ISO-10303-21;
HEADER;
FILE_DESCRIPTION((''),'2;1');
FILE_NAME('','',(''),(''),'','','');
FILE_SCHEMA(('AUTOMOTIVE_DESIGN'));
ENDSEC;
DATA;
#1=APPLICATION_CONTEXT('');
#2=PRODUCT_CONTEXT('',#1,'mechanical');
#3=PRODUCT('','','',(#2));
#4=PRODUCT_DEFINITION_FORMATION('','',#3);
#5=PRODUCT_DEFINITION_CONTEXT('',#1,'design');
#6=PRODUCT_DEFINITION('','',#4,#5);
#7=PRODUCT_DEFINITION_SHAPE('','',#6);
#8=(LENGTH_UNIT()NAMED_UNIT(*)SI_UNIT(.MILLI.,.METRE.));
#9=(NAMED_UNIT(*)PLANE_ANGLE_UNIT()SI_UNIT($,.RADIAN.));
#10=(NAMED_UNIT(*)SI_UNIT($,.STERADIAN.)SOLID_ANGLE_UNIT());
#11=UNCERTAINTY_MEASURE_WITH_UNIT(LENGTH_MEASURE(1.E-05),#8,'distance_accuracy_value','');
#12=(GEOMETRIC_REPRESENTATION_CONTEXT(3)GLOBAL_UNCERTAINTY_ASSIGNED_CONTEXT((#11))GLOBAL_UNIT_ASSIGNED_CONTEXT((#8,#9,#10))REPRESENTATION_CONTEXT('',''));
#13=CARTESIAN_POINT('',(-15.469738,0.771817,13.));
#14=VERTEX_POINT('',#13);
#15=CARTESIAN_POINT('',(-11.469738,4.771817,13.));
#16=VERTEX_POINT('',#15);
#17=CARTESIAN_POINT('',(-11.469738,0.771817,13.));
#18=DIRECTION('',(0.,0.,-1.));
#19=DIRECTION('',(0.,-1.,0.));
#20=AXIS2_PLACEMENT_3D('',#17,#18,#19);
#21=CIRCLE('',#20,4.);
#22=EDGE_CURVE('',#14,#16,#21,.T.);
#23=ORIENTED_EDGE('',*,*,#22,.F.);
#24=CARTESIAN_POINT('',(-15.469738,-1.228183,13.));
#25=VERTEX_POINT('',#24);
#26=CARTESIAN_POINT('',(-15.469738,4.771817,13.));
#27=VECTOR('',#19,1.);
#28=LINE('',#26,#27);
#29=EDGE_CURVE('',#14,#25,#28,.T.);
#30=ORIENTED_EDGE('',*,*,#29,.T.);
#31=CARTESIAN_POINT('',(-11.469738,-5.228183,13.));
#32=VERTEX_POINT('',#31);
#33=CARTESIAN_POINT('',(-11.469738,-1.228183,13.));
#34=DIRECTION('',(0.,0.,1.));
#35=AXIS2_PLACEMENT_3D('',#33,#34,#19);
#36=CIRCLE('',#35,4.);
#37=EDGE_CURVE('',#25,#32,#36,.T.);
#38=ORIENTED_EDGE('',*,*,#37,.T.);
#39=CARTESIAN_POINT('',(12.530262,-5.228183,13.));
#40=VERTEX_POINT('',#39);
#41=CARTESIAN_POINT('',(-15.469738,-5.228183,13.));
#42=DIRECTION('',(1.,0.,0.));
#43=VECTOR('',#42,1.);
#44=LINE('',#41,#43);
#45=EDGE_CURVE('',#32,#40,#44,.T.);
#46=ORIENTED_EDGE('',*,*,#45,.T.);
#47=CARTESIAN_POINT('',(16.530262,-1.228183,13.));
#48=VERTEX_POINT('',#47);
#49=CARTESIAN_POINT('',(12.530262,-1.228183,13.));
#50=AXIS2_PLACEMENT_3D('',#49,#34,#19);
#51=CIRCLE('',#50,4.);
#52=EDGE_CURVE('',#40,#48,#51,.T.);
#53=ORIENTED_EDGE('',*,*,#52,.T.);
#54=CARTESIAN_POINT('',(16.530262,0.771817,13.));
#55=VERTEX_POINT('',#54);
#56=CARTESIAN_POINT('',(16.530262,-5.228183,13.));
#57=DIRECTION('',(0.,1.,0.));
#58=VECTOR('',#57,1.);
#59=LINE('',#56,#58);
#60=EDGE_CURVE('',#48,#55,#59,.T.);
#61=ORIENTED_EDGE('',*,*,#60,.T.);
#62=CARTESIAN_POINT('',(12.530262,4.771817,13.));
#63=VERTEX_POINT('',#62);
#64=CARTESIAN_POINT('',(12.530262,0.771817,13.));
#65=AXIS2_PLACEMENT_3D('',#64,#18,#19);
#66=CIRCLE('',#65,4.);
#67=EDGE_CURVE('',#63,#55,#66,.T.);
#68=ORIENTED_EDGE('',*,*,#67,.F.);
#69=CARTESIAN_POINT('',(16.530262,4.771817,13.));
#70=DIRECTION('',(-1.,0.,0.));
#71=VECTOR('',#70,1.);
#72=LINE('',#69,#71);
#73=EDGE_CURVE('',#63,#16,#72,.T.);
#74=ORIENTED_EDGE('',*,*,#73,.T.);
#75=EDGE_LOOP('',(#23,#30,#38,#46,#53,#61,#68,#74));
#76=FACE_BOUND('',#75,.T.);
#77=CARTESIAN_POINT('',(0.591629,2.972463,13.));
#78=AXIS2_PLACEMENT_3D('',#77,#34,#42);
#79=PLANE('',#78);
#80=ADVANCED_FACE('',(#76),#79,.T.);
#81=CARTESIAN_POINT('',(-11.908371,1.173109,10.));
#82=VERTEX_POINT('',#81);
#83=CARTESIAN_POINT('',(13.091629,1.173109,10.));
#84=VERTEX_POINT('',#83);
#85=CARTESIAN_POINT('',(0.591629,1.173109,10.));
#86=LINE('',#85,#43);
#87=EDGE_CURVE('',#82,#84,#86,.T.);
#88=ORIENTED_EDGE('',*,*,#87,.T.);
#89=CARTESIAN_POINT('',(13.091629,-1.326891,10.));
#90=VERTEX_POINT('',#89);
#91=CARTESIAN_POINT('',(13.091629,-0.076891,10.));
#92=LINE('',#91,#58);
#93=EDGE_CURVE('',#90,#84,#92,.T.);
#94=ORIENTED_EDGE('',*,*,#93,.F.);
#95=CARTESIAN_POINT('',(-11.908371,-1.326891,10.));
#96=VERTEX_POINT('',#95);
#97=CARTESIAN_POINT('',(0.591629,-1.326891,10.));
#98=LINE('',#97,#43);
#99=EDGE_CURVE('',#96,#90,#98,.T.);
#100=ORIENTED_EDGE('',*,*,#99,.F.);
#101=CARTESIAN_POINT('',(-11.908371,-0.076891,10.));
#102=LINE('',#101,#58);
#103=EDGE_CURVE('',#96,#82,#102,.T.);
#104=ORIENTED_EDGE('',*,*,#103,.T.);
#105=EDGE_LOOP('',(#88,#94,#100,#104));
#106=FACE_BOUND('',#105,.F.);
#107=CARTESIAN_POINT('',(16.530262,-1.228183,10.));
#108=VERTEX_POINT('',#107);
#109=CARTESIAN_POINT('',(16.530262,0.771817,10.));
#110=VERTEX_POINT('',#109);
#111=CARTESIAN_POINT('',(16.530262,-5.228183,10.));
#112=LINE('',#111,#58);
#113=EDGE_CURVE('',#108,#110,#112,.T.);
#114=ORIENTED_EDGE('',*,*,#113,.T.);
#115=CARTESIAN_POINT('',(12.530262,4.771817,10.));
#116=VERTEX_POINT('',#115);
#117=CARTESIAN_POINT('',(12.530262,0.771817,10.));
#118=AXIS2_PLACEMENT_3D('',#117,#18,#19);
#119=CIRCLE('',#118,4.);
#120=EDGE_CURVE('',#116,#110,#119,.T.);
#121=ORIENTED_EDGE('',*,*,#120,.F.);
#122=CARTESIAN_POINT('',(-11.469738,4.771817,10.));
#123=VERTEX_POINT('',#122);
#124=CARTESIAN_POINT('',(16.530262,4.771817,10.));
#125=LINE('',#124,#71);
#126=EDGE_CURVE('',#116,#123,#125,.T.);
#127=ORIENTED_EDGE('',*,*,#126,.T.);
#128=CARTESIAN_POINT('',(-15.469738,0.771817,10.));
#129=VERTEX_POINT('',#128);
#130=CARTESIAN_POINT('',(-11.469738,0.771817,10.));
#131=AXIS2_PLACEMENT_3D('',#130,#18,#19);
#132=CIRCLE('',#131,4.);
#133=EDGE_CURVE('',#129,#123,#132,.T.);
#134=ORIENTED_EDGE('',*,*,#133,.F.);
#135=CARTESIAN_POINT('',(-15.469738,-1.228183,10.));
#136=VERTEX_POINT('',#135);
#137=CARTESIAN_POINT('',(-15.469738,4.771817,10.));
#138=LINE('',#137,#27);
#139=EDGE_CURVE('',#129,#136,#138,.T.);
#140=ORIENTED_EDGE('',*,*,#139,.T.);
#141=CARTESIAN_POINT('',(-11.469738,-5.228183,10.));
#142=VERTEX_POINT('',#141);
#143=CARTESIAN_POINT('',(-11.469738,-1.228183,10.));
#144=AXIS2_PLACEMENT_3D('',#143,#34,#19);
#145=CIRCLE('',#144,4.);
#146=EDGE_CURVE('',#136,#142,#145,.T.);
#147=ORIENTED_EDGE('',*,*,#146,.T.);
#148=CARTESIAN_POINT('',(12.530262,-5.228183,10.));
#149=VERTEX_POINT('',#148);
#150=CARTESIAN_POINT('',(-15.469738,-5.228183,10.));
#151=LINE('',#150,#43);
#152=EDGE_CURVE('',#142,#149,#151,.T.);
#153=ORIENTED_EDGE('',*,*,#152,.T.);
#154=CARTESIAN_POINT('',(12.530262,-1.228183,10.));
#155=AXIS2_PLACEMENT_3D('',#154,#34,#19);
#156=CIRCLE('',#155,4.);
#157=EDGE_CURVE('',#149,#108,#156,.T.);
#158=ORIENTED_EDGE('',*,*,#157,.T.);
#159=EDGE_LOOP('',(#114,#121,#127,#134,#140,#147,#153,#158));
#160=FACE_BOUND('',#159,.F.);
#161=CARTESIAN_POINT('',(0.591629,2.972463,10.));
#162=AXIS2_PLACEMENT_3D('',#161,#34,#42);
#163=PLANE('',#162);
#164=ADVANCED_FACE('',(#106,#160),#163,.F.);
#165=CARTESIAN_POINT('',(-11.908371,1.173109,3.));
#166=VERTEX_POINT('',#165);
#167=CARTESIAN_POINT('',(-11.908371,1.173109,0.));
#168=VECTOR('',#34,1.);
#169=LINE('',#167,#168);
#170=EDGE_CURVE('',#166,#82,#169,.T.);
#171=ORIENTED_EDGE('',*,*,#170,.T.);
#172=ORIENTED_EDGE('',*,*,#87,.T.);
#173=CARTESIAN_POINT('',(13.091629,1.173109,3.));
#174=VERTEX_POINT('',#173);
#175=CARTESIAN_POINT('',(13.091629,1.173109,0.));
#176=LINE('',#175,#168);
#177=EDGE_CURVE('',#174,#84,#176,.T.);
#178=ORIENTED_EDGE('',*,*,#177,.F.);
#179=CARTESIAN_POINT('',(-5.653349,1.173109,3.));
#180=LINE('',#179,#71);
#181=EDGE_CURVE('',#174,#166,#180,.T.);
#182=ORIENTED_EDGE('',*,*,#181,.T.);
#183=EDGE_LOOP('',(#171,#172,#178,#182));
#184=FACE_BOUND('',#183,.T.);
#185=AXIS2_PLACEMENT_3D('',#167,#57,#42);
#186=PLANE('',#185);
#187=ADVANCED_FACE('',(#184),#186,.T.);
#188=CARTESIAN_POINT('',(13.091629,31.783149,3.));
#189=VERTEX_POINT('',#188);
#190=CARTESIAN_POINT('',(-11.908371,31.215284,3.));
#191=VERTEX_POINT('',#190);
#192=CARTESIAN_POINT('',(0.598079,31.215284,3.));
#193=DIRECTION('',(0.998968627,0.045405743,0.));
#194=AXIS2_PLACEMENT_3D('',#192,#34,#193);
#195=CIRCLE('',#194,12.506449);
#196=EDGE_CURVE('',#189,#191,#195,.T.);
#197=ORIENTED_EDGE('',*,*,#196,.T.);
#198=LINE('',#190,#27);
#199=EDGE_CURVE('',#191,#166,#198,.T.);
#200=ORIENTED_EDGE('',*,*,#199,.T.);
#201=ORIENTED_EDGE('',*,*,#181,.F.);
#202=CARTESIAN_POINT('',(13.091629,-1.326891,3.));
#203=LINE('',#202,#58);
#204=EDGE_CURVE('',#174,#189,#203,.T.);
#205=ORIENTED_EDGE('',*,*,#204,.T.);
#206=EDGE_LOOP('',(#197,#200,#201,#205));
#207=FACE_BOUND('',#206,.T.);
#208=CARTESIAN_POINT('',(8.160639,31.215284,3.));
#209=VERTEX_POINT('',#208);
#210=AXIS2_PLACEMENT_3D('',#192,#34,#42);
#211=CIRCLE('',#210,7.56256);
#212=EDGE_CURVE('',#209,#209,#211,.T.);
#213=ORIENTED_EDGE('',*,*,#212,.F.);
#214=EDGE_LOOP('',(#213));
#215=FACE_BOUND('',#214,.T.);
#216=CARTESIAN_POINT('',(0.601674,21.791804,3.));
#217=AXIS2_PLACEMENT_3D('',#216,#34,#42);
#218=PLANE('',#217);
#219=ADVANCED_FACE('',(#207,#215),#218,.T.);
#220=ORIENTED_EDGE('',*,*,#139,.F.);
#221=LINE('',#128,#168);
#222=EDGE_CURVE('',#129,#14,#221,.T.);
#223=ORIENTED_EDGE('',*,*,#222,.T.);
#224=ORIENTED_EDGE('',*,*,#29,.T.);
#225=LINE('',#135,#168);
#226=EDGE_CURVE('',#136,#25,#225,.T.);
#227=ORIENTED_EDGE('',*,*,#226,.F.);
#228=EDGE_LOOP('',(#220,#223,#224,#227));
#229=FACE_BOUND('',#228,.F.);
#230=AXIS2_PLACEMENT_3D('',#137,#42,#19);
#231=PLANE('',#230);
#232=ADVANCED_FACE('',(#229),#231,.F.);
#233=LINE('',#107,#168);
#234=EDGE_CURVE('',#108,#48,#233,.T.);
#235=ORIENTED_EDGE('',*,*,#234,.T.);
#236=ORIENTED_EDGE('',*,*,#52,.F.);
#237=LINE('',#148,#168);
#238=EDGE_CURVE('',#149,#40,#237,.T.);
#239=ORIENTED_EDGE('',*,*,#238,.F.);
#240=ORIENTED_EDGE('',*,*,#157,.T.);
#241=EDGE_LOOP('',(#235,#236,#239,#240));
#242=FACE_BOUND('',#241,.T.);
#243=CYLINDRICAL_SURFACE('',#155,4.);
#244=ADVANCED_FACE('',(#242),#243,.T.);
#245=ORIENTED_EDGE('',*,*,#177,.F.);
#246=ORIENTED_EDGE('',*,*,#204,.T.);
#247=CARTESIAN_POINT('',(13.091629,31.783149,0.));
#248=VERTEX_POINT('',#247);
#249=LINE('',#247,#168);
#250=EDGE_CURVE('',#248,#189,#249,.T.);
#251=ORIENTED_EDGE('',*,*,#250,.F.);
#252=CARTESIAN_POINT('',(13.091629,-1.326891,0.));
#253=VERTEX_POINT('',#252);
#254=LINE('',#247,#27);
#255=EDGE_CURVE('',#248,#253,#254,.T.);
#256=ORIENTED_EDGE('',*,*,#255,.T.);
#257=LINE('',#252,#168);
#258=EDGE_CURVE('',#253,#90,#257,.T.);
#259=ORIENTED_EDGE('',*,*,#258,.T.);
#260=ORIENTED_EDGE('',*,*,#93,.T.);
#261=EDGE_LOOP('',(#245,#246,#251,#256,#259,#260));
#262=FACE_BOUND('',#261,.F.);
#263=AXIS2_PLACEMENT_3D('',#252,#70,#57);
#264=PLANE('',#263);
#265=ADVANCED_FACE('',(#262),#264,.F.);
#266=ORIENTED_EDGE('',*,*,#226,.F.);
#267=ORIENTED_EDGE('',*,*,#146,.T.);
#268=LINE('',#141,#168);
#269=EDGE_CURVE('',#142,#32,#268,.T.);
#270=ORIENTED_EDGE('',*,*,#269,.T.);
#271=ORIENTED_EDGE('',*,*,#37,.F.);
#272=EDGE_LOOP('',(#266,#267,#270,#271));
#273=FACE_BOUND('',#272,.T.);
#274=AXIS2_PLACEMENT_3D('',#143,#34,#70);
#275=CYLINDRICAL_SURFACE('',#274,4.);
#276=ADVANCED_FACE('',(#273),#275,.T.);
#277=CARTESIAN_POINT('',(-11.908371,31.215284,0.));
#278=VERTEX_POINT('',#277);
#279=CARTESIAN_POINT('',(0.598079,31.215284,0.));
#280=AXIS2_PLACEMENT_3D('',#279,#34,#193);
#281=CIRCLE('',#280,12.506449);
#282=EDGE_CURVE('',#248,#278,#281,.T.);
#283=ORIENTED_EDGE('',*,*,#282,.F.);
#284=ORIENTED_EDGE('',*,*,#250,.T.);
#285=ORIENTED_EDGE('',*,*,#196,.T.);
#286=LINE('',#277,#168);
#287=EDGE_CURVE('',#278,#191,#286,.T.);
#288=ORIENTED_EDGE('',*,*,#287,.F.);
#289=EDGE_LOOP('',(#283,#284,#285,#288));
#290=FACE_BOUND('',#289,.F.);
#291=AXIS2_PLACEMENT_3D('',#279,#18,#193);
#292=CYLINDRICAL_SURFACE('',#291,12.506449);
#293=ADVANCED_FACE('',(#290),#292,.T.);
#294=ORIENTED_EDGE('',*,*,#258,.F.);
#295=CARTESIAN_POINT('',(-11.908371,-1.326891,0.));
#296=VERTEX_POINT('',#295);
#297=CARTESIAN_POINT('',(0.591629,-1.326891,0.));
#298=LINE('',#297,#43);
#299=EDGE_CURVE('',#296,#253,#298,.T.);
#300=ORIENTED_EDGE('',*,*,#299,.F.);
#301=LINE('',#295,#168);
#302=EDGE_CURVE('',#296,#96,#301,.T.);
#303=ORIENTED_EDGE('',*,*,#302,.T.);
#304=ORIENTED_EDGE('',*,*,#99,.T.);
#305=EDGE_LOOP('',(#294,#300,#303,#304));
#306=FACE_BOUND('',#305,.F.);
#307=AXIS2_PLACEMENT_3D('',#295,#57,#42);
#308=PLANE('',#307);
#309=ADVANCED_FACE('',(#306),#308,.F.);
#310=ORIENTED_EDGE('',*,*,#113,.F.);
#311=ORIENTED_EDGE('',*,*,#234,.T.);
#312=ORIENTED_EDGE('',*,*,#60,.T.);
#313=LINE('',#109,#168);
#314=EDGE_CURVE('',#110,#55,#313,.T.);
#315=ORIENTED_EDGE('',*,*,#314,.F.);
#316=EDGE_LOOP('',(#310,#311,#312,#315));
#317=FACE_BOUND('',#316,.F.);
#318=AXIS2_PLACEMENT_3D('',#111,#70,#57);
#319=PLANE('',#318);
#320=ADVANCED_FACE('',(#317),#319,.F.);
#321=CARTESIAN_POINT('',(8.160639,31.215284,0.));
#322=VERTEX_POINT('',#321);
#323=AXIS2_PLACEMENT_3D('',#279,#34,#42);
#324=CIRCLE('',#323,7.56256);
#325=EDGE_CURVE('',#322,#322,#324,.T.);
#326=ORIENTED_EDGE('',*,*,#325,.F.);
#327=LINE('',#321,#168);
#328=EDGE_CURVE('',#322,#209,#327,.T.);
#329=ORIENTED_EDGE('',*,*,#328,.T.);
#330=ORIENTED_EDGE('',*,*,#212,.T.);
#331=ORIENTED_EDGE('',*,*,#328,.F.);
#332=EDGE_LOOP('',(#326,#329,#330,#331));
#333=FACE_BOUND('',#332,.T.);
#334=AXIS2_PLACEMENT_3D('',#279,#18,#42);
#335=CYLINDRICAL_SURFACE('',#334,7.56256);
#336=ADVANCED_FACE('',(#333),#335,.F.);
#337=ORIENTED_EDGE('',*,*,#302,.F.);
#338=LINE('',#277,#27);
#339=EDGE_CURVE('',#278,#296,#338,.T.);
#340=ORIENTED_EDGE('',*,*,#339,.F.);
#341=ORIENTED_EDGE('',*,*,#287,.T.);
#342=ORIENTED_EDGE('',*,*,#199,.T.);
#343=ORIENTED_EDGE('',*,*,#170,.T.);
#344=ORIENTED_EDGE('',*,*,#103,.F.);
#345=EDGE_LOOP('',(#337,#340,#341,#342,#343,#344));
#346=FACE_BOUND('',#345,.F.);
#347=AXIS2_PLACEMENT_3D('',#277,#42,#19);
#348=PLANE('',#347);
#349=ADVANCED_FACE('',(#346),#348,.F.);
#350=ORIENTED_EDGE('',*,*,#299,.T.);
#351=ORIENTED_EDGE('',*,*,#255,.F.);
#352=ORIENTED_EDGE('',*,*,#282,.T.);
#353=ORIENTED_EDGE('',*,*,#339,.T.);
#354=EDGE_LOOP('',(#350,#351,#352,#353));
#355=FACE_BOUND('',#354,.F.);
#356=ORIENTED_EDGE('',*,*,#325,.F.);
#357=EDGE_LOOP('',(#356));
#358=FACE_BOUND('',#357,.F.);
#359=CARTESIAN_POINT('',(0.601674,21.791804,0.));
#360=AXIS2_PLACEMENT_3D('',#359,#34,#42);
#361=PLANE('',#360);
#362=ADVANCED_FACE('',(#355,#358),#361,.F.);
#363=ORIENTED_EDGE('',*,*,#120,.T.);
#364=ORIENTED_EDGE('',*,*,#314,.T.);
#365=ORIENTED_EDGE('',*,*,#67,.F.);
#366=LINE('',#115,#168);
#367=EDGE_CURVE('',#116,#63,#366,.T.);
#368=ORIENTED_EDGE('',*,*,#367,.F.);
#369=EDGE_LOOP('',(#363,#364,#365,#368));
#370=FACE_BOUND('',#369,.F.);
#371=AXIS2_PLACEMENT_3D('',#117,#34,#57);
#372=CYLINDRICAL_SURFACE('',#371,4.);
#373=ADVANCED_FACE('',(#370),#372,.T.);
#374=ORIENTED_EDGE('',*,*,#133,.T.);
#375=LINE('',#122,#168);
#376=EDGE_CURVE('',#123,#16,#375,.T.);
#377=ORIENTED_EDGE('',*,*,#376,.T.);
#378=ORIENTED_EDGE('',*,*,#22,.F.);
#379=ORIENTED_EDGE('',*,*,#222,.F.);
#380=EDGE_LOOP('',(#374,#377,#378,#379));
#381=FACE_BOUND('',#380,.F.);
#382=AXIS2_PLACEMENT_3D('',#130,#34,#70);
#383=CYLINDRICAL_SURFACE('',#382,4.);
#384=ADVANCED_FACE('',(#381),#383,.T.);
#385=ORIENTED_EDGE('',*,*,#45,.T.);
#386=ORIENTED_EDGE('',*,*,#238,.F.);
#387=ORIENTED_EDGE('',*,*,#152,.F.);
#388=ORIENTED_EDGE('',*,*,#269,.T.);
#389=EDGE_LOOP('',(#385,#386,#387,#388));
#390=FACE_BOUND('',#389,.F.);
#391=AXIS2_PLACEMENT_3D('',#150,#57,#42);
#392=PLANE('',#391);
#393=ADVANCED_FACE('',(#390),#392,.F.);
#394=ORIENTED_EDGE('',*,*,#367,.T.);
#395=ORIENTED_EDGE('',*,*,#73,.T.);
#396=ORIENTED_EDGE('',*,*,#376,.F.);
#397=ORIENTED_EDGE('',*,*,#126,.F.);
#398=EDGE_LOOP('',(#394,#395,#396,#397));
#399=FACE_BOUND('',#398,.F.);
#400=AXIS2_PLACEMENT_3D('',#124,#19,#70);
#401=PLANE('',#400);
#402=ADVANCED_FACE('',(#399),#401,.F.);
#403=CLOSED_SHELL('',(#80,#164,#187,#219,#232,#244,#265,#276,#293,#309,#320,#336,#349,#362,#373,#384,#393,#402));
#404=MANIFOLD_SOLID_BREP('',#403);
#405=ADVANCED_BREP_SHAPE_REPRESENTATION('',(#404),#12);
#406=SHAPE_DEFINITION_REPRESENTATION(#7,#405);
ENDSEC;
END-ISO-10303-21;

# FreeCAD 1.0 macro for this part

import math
import FreeCAD as App
import Part
import Sketcher


def edges_at(feature, points):
    """Names of the edges that pass closest to the given points."""
    edges = feature.Shape.Edges
    near = lambda p: min(range(len(edges)), key=lambda i: edges[i].distToShape(Part.Vertex(*p))[0])
    return sorted({f"Edge{near(p) + 1}" for p in points})

doc = App.newDocument("Part")
body = doc.addObject("PartDesign::Body", "Body")

# Sketch on XY plane
sketch1 = doc.addObject("Sketcher::SketchObject", "Sketch")
body.addObject(sketch1)
sketch1.AttachmentSupport = (doc.XY_Plane, [""])
sketch1.MapMode = "FlatFace"
sketch1.addGeometry(Part.LineSegment(App.Vector(-11.908371, 31.215284, 0), App.Vector(-11.908371, -1.326891, 0)), False)
sketch1.addGeometry(Part.LineSegment(App.Vector(-11.908371, -1.326891, 0), App.Vector(13.091629, -1.326891, 0)), False)
sketch1.addGeometry(Part.LineSegment(App.Vector(13.091629, -1.326891, 0), App.Vector(13.091629, 31.783149, 0)), False)
sketch1.addGeometry(Part.ArcOfCircle(Part.Circle(App.Vector(0.598079, 31.215284, 0), App.Vector(0, 0, 1), 12.506449), math.radians(2.602452), math.radians(180)), False)
sketch1.addGeometry(Part.Circle(App.Vector(0.598079, 31.215284, 0), App.Vector(0, 0, 1), 7.56256), False)
sketch1.addConstraint(Sketcher.Constraint("Coincident", 0, 2, 1, 1))
sketch1.addConstraint(Sketcher.Constraint("Coincident", 1, 2, 2, 1))
sketch1.addConstraint(Sketcher.Constraint("Coincident", 2, 2, 3, 1))
sketch1.addConstraint(Sketcher.Constraint("Tangent", 3, 2, 0, 1))
sketch1.addConstraint(Sketcher.Constraint("Vertical", 0))
sketch1.addConstraint(Sketcher.Constraint("Horizontal", 1))
sketch1.addConstraint(Sketcher.Constraint("Vertical", 2))
sketch1.addConstraint(Sketcher.Constraint("Coincident", 4, 3, 3, 3))
sketch1.addConstraint(Sketcher.Constraint("DistanceX", 1, 1, 1, 2, 25.0))
sketch1.addConstraint(Sketcher.Constraint("Diameter", 4, 15.12512))
sketch1.addConstraint(Sketcher.Constraint("Radius", 3, 12.506449))
sketch1.addConstraint(Sketcher.Constraint("DistanceY", 2, 1, 2, 2, 33.11004))
sketch1.addConstraint(Sketcher.Constraint("DistanceX", -1, 1, 3, 3, 0.598079))
sketch1.addConstraint(Sketcher.Constraint("DistanceY", 0, 2, -1, 1, 1.326891))
pad1 = doc.addObject("PartDesign::Pad", "Pad")
body.addObject(pad1)
pad1.Profile = sketch1
pad1.Length = 3

# Sketch on XY plane
sketch2 = doc.addObject("Sketcher::SketchObject", "Sketch001")
body.addObject(sketch2)
sketch2.AttachmentSupport = (doc.XY_Plane, [""])
sketch2.MapMode = "FlatFace"
sketch2.addGeometry(Part.LineSegment(App.Vector(-11.908371, 1.173109, 0), App.Vector(-11.908371, -1.326891, 0)), False)
sketch2.addGeometry(Part.LineSegment(App.Vector(-11.908371, -1.326891, 0), App.Vector(13.091629, -1.326891, 0)), False)
sketch2.addGeometry(Part.LineSegment(App.Vector(13.091629, -1.326891, 0), App.Vector(13.091629, 1.173109, 0)), False)
sketch2.addGeometry(Part.LineSegment(App.Vector(13.091629, 1.173109, 0), App.Vector(-11.908371, 1.173109, 0)), False)
sketch2.addConstraint(Sketcher.Constraint("Coincident", 0, 2, 1, 1))
sketch2.addConstraint(Sketcher.Constraint("Coincident", 1, 2, 2, 1))
sketch2.addConstraint(Sketcher.Constraint("Coincident", 2, 2, 3, 1))
sketch2.addConstraint(Sketcher.Constraint("Coincident", 3, 2, 0, 1))
sketch2.addConstraint(Sketcher.Constraint("Vertical", 0))
sketch2.addConstraint(Sketcher.Constraint("Horizontal", 1))
sketch2.addConstraint(Sketcher.Constraint("Vertical", 2))
sketch2.addConstraint(Sketcher.Constraint("Horizontal", 3))
sketch2.addConstraint(Sketcher.Constraint("DistanceX", 1, 1, 1, 2, 25.0))
sketch2.addConstraint(Sketcher.Constraint("DistanceY", 0, 2, 0, 1, 2.5))
sketch2.addConstraint(Sketcher.Constraint("DistanceX", 0, 2, -1, 1, 11.908371))
sketch2.addConstraint(Sketcher.Constraint("DistanceY", 0, 2, -1, 1, 1.326891))
pad2 = doc.addObject("PartDesign::Pad", "Pad001")
body.addObject(pad2)
pad2.Profile = sketch2
pad2.Length = 10

# Sketch on XY plane
sketch3 = doc.addObject("Sketcher::SketchObject", "Sketch002")
body.addObject(sketch3)
sketch3.AttachmentSupport = (doc.XY_Plane, [""])
sketch3.MapMode = "FlatFace"
sketch3.AttachmentOffset = App.Placement(App.Vector(0, 0, 10), App.Rotation())
sketch3.addGeometry(Part.LineSegment(App.Vector(-15.469738, 4.771817, 0), App.Vector(-15.469738, -5.228183, 0)), False)
sketch3.addGeometry(Part.LineSegment(App.Vector(-15.469738, -5.228183, 0), App.Vector(16.530262, -5.228183, 0)), False)
sketch3.addGeometry(Part.LineSegment(App.Vector(16.530262, -5.228183, 0), App.Vector(16.530262, 4.771817, 0)), False)
sketch3.addGeometry(Part.LineSegment(App.Vector(16.530262, 4.771817, 0), App.Vector(-15.469738, 4.771817, 0)), False)
sketch3.addConstraint(Sketcher.Constraint("Coincident", 0, 2, 1, 1))
sketch3.addConstraint(Sketcher.Constraint("Coincident", 1, 2, 2, 1))
sketch3.addConstraint(Sketcher.Constraint("Coincident", 2, 2, 3, 1))
sketch3.addConstraint(Sketcher.Constraint("Coincident", 3, 2, 0, 1))
sketch3.addConstraint(Sketcher.Constraint("Vertical", 0))
sketch3.addConstraint(Sketcher.Constraint("Horizontal", 1))
sketch3.addConstraint(Sketcher.Constraint("Vertical", 2))
sketch3.addConstraint(Sketcher.Constraint("Horizontal", 3))
sketch3.addConstraint(Sketcher.Constraint("DistanceX", 1, 1, 1, 2, 32.0))
sketch3.addConstraint(Sketcher.Constraint("DistanceY", 0, 2, 0, 1, 10.0))
sketch3.addConstraint(Sketcher.Constraint("DistanceX", 0, 2, -1, 1, 15.469738))
sketch3.addConstraint(Sketcher.Constraint("DistanceY", 0, 2, -1, 1, 5.228183))
pad3 = doc.addObject("PartDesign::Pad", "Pad002")
body.addObject(pad3)
pad3.Profile = sketch3
pad3.Length = 3
doc.recompute()

fillet = doc.addObject("PartDesign::Fillet", "Fillet")
body.addObject(fillet)
fillet.Base = (pad3, edges_at(pad3, [
    (16.53, -5.228, 11.5),
    (16.53, 4.772, 11.5),
    (-15.47, -5.228, 11.5),
    (-15.47, 4.772, 11.5),
]))
fillet.Radius = 4

doc.recompute()
